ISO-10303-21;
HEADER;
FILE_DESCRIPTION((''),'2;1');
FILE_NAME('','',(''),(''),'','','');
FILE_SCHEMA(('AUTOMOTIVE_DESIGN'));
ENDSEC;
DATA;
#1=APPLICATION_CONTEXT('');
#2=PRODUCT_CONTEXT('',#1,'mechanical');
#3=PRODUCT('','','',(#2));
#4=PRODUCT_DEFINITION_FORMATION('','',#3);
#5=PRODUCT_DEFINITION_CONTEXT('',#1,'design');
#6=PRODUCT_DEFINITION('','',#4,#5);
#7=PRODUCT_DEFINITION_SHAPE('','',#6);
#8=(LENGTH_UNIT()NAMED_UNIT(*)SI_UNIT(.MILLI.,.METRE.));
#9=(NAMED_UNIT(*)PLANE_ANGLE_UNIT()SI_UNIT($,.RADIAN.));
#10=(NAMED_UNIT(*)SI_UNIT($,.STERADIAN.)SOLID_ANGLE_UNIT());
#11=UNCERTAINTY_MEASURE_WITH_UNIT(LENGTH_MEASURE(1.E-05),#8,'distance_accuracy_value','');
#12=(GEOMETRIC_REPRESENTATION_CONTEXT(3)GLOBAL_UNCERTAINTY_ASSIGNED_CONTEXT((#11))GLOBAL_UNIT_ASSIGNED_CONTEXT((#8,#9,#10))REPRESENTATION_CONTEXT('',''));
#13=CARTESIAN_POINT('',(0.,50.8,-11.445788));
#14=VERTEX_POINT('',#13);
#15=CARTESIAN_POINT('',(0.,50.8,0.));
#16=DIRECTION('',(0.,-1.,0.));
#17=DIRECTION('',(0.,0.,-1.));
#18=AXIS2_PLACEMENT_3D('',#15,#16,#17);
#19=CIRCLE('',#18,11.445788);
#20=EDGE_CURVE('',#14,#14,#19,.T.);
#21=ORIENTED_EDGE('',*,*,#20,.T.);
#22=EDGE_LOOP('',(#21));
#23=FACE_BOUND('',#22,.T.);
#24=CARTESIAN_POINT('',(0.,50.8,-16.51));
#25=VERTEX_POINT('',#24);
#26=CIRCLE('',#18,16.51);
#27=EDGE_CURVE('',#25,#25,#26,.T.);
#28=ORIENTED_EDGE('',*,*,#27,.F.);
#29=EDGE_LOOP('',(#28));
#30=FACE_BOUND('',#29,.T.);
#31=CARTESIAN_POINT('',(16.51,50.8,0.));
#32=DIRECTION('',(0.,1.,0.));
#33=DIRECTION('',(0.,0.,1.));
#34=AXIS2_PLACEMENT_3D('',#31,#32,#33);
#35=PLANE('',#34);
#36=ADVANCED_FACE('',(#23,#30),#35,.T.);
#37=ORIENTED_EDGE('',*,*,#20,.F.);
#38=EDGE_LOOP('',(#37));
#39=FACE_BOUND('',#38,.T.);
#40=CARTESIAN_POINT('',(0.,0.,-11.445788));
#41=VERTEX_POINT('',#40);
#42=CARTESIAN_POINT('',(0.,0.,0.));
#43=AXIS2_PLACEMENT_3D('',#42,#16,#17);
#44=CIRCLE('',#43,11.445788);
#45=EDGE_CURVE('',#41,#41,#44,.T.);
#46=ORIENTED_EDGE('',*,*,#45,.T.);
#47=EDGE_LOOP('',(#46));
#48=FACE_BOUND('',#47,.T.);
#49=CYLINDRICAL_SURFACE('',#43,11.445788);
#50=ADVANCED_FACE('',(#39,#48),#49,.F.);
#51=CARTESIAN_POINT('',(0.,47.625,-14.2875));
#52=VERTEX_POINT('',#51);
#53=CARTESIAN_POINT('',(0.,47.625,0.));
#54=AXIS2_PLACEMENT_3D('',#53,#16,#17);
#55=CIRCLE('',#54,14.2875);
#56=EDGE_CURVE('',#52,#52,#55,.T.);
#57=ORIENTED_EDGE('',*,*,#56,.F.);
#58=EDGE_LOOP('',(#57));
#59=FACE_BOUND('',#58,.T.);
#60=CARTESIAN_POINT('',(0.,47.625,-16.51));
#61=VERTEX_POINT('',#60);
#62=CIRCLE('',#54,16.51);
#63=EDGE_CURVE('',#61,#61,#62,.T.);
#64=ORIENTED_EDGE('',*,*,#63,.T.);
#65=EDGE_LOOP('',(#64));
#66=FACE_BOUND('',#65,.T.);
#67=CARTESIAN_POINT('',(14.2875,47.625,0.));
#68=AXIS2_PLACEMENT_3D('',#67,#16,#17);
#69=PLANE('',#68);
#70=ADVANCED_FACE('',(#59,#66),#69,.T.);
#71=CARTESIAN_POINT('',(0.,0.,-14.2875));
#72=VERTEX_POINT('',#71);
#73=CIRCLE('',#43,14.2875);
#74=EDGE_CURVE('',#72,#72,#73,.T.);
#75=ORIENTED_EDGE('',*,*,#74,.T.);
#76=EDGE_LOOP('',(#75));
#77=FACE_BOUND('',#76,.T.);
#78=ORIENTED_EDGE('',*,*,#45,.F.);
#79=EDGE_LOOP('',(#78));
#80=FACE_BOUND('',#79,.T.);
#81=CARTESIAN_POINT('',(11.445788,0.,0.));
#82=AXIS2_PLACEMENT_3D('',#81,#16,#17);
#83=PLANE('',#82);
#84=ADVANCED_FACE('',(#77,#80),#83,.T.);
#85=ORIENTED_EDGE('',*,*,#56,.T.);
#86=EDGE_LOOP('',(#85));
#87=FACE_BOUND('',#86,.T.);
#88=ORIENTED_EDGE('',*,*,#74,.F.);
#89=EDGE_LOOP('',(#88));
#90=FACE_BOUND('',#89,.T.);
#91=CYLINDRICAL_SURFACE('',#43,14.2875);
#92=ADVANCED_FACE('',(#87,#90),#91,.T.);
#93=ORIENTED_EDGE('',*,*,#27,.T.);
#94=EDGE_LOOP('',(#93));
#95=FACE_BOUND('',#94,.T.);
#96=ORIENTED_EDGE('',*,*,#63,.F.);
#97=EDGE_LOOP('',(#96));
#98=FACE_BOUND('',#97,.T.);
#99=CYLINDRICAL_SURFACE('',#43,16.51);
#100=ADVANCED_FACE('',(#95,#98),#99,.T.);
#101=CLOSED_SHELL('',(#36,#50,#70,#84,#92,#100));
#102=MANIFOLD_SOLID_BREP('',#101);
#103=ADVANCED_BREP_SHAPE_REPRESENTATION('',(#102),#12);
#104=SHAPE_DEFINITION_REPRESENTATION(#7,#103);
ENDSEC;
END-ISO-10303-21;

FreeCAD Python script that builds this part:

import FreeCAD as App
import Part
import Sketcher
Q = App.Units.Quantity

doc = App.newDocument("Part")
body = doc.addObject("PartDesign::Body", "Body")

# Sketch on XY plane
sketch1 = body.newObject("Sketcher::SketchObject", "Sketch")
sketch1.AttachmentSupport = (doc.getObject("XY_Plane"), [""])
sketch1.MapMode = "FlatFace"
sketch1.addGeometry(Part.LineSegment(App.Vector(11.4, 50.8, 0), App.Vector(11.4, 0, 0)), False)
sketch1.addGeometry(Part.LineSegment(App.Vector(11.4, 0, 0), App.Vector(14.3, 0, 0)), False)
sketch1.addGeometry(Part.LineSegment(App.Vector(14.3, 0, 0), App.Vector(14.3, 47.6, 0)), False)
sketch1.addGeometry(Part.LineSegment(App.Vector(14.3, 47.6, 0), App.Vector(16.5, 47.6, 0)), False)
sketch1.addGeometry(Part.LineSegment(App.Vector(16.5, 47.6, 0), App.Vector(16.5, 50.8, 0)), False)
sketch1.addGeometry(Part.LineSegment(App.Vector(16.5, 50.8, 0), App.Vector(11.4, 50.8, 0)), False)
sketch1.addConstraint(Sketcher.Constraint("Coincident", 0, 2, 1, 1))
sketch1.addConstraint(Sketcher.Constraint("Coincident", 1, 2, 2, 1))
sketch1.addConstraint(Sketcher.Constraint("Coincident", 2, 2, 3, 1))
sketch1.addConstraint(Sketcher.Constraint("Coincident", 3, 2, 4, 1))
sketch1.addConstraint(Sketcher.Constraint("Coincident", 4, 2, 5, 1))
sketch1.addConstraint(Sketcher.Constraint("Coincident", 5, 2, 0, 1))
sketch1.addConstraint(Sketcher.Constraint("Vertical", 0))
sketch1.addConstraint(Sketcher.Constraint("Horizontal", 1))
sketch1.addConstraint(Sketcher.Constraint("Vertical", 2))
sketch1.addConstraint(Sketcher.Constraint("Horizontal", 3))
sketch1.addConstraint(Sketcher.Constraint("Vertical", 4))
sketch1.addConstraint(Sketcher.Constraint("Horizontal", 5))
sketch1.addConstraint(Sketcher.Constraint("PointOnObject", 0, 2, -1))
sketch1.addConstraint(Sketcher.Constraint("DistanceY", 0, 2, 0, 1, Q("2 in")))
sketch1.addConstraint(Sketcher.Constraint("DistanceY", 2, 1, 2, 2, Q("1.875 in")))
sketch1.addConstraint(Sketcher.Constraint("DistanceX", -1, 1, 3, 2, Q("0.65 in")))
sketch1.addConstraint(Sketcher.Constraint("DistanceX", 3, 1, 3, 2, Q("0.0875 in")))
sketch1.addConstraint(Sketcher.Constraint("DistanceX", 1, 1, 1, 2, Q("2.841712 mm")))
revolution = body.newObject("PartDesign::Revolution", "Revolution")
revolution.Profile = sketch1
revolution.ReferenceAxis = (sketch1, ["V_Axis"])
revolution.Angle = 360

doc.recompute()
